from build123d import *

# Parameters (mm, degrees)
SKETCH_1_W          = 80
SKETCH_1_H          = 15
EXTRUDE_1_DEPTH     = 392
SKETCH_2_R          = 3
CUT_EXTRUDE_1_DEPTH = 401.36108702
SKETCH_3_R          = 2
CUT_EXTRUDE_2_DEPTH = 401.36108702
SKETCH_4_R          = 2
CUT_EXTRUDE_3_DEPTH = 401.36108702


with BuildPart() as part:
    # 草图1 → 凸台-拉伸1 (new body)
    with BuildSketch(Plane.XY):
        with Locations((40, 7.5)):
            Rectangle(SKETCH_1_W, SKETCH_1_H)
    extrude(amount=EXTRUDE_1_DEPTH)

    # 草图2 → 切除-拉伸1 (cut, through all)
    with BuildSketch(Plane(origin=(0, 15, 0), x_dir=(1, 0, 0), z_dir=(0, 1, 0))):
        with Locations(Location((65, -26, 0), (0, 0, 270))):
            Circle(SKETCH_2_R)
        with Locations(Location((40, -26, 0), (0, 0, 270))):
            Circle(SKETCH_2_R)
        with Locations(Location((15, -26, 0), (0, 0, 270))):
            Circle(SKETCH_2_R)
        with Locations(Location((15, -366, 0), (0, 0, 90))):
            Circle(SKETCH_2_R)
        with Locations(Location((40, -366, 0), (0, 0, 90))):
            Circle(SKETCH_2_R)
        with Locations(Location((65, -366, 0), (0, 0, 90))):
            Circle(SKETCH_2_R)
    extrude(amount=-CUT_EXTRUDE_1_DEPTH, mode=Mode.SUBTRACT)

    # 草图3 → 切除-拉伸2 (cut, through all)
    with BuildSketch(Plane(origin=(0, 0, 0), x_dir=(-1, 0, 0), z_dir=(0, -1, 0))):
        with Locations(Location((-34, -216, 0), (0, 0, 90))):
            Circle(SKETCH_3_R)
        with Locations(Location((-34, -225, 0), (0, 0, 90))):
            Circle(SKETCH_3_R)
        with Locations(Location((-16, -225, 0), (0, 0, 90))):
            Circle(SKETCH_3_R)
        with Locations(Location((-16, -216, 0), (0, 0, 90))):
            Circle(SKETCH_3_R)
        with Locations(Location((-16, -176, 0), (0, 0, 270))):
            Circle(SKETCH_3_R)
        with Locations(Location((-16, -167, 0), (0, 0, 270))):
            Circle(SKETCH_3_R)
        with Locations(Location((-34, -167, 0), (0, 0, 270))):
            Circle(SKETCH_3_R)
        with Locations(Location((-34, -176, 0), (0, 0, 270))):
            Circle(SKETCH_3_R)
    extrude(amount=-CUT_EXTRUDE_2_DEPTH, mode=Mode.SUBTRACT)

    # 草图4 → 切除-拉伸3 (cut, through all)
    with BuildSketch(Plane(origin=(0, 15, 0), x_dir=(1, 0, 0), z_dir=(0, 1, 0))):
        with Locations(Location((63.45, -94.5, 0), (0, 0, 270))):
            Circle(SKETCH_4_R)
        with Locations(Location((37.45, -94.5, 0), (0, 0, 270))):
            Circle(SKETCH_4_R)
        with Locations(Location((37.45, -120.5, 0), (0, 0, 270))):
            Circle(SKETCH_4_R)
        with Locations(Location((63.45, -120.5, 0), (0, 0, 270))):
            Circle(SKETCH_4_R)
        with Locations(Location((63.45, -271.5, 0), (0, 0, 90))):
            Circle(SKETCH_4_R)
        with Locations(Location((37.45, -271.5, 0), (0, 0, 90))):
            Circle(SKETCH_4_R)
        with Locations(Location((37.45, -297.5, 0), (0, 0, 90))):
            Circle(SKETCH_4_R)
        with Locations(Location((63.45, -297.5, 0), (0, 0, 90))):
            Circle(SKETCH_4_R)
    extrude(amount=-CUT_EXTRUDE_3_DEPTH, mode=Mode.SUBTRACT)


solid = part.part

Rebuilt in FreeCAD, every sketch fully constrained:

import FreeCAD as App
import Part
import Sketcher


def add_polygon(sketch, points):
    """Adds a closed chain of lines whose ends are joined by coincident constraints."""
    first, n = sketch.GeometryCount, len(points)
    for a, b in zip(points, points[1:] + points[:1]):
        sketch.addGeometry(Part.LineSegment(App.Vector(*a, 0), App.Vector(*b, 0)), False)
    for i in range(n):
        sketch.addConstraint(Sketcher.Constraint("Coincident", first + i, 2, first + (i + 1) % n, 1))

doc = App.newDocument("Part")
body = doc.addObject("PartDesign::Body", "Body")

# Sketch on XY plane
sketch1 = body.newObject("Sketcher::SketchObject", "Sketch")
sketch1.AttachmentSupport = (doc.getObject("XY_Plane"), [""])
sketch1.MapMode = "FlatFace"
add_polygon(sketch1, [(0, 15), (0, 0), (80, 0), (80, 15)])  # lines 0-3
sketch1.addConstraint([
    Sketcher.Constraint("Vertical", 0),
    Sketcher.Constraint("Horizontal", 1),
    Sketcher.Constraint("Vertical", 2),
    Sketcher.Constraint("Horizontal", 3),
    Sketcher.Constraint("Coincident", 0, 2, -1, 1),
    Sketcher.Constraint("DistanceX", 1, 1, 1, 2, 80.0),
    Sketcher.Constraint("DistanceY", 0, 2, 0, 1, 15.0),
])
pad1 = body.newObject("PartDesign::Pad", "Pad")
pad1.Profile = sketch1
pad1.Length = 392

# Sketch on XZ plane
sketch2 = body.newObject("Sketcher::SketchObject", "Sketch001")
sketch2.AttachmentSupport = (doc.getObject("XZ_Plane"), [""])
sketch2.MapMode = "FlatFace"
sketch2.AttachmentOffset = App.Placement(App.Vector(0, 0, -15), App.Rotation())
sketch2.addGeometry([
    Part.Circle(App.Vector(65, 26, 0), App.Vector(0, 0, 1), 3),  # 0
    Part.Circle(App.Vector(40, 26, 0), App.Vector(0, 0, 1), 3),  # 1
    Part.Circle(App.Vector(15, 26, 0), App.Vector(0, 0, 1), 3),  # 2
    Part.Circle(App.Vector(15, 366, 0), App.Vector(0, 0, 1), 3),  # 3
    Part.Circle(App.Vector(40, 366, 0), App.Vector(0, 0, 1), 3),  # 4
    Part.Circle(App.Vector(65, 366, 0), App.Vector(0, 0, 1), 3),  # 5
], False)
sketch2.addConstraint([
    Sketcher.Constraint("Equal", 0, 1),
    Sketcher.Constraint("Equal", 1, 2),
    Sketcher.Constraint("Equal", 2, 3),
    Sketcher.Constraint("Equal", 3, 4),
    Sketcher.Constraint("Equal", 4, 5),
    Sketcher.Constraint("Horizontal", 0, 3, 1, 3),
    Sketcher.Constraint("Horizontal", 1, 3, 2, 3),
    Sketcher.Constraint("Horizontal", 3, 3, 4, 3),
    Sketcher.Constraint("Horizontal", 4, 3, 5, 3),
    Sketcher.Constraint("Vertical", 2, 3, 3, 3),
    Sketcher.Constraint("Vertical", 1, 3, 4, 3),
    Sketcher.Constraint("Vertical", 0, 3, 5, 3),
    Sketcher.Constraint("Diameter", 0, 6.0),
    Sketcher.Constraint("DistanceX", -1, 1, 0, 3, 65.0),
    Sketcher.Constraint("DistanceY", -1, 1, 0, 3, 26.0),
    Sketcher.Constraint("DistanceX", -1, 1, 1, 3, 40.0),
    Sketcher.Constraint("DistanceX", -1, 1, 2, 3, 15.0),
    Sketcher.Constraint("DistanceY", -1, 1, 3, 3, 366.0),
])
pocket1 = body.newObject("PartDesign::Pocket", "Pocket")
pocket1.Profile = sketch2
pocket1.Type = "ThroughAll"
pocket1.Reversed = True

# Sketch on XZ plane
sketch3 = body.newObject("Sketcher::SketchObject", "Sketch002")
sketch3.AttachmentSupport = (doc.getObject("XZ_Plane"), [""])
sketch3.MapMode = "FlatFace"
sketch3.addGeometry([
    Part.Circle(App.Vector(34, 216, 0), App.Vector(0, 0, 1), 2),  # 0
    Part.Circle(App.Vector(34, 225, 0), App.Vector(0, 0, 1), 2),  # 1
    Part.Circle(App.Vector(16, 225, 0), App.Vector(0, 0, 1), 2),  # 2
    Part.Circle(App.Vector(16, 216, 0), App.Vector(0, 0, 1), 2),  # 3
    Part.Circle(App.Vector(16, 176, 0), App.Vector(0, 0, 1), 2),  # 4
    Part.Circle(App.Vector(16, 167, 0), App.Vector(0, 0, 1), 2),  # 5
    Part.Circle(App.Vector(34, 167, 0), App.Vector(0, 0, 1), 2),  # 6
    Part.Circle(App.Vector(34, 176, 0), App.Vector(0, 0, 1), 2),  # 7
], False)
sketch3.addConstraint([
    Sketcher.Constraint("Equal", 0, 1),
    Sketcher.Constraint("Equal", 1, 2),
    Sketcher.Constraint("Equal", 2, 3),
    Sketcher.Constraint("Equal", 3, 4),
    Sketcher.Constraint("Equal", 4, 5),
    Sketcher.Constraint("Equal", 5, 6),
    Sketcher.Constraint("Equal", 6, 7),
    Sketcher.Constraint("Horizontal", 1, 3, 2, 3),
    Sketcher.Constraint("Horizontal", 0, 3, 3, 3),
    Sketcher.Constraint("Horizontal", 5, 3, 6, 3),
    Sketcher.Constraint("Horizontal", 4, 3, 7, 3),
    Sketcher.Constraint("Vertical", 0, 3, 1, 3),
    Sketcher.Constraint("Vertical", 2, 3, 3, 3),
    Sketcher.Constraint("Vertical", 3, 3, 4, 3),
    Sketcher.Constraint("Vertical", 4, 3, 5, 3),
    Sketcher.Constraint("Vertical", 1, 3, 6, 3),
    Sketcher.Constraint("Vertical", 6, 3, 7, 3),
    Sketcher.Constraint("Diameter", 0, 4.0),
    Sketcher.Constraint("DistanceX", -1, 1, 0, 3, 34.0),
    Sketcher.Constraint("DistanceY", -1, 1, 0, 3, 216.0),
    Sketcher.Constraint("DistanceY", -1, 1, 1, 3, 225.0),
    Sketcher.Constraint("DistanceX", -1, 1, 2, 3, 16.0),
    Sketcher.Constraint("DistanceY", -1, 1, 4, 3, 176.0),
    Sketcher.Constraint("DistanceY", -1, 1, 5, 3, 167.0),
])
pocket2 = body.newObject("PartDesign::Pocket", "Pocket001")
pocket2.Profile = sketch3
pocket2.Type = "ThroughAll"

# Sketch on XZ plane
sketch4 = body.newObject("Sketcher::SketchObject", "Sketch003")
sketch4.AttachmentSupport = (doc.getObject("XZ_Plane"), [""])
sketch4.MapMode = "FlatFace"
sketch4.AttachmentOffset = App.Placement(App.Vector(0, 0, -15), App.Rotation())
sketch4.addGeometry([
    Part.Circle(App.Vector(63.5, 94.5, 0), App.Vector(0, 0, 1), 2),  # 0
    Part.Circle(App.Vector(37.5, 94.5, 0), App.Vector(0, 0, 1), 2),  # 1
    Part.Circle(App.Vector(37.5, 120.5, 0), App.Vector(0, 0, 1), 2),  # 2
    Part.Circle(App.Vector(63.5, 120.5, 0), App.Vector(0, 0, 1), 2),  # 3
    Part.Circle(App.Vector(63.5, 271.5, 0), App.Vector(0, 0, 1), 2),  # 4
    Part.Circle(App.Vector(37.5, 271.5, 0), App.Vector(0, 0, 1), 2),  # 5
    Part.Circle(App.Vector(37.5, 297.5, 0), App.Vector(0, 0, 1), 2),  # 6
    Part.Circle(App.Vector(63.5, 297.5, 0), App.Vector(0, 0, 1), 2),  # 7
], False)
sketch4.addConstraint([
    Sketcher.Constraint("Equal", 0, 1),
    Sketcher.Constraint("Equal", 1, 2),
    Sketcher.Constraint("Equal", 2, 3),
    Sketcher.Constraint("Equal", 3, 4),
    Sketcher.Constraint("Equal", 4, 5),
    Sketcher.Constraint("Equal", 5, 6),
    Sketcher.Constraint("Equal", 6, 7),
    Sketcher.Constraint("Horizontal", 0, 3, 1, 3),
    Sketcher.Constraint("Horizontal", 2, 3, 3, 3),
    Sketcher.Constraint("Horizontal", 4, 3, 5, 3),
    Sketcher.Constraint("Horizontal", 6, 3, 7, 3),
    Sketcher.Constraint("Vertical", 1, 3, 2, 3),
    Sketcher.Constraint("Vertical", 0, 3, 3, 3),
    Sketcher.Constraint("Vertical", 3, 3, 4, 3),
    Sketcher.Constraint("Vertical", 2, 3, 5, 3),
    Sketcher.Constraint("Vertical", 5, 3, 6, 3),
    Sketcher.Constraint("Vertical", 4, 3, 7, 3),
    Sketcher.Constraint("Diameter", 0, 4.0),
    Sketcher.Constraint("DistanceX", 1, 3, 0, 3, 26.0),
    Sketcher.Constraint("DistanceY", 1, 3, 2, 3, 26.0),
    Sketcher.Constraint("DistanceY", 3, 3, 4, 3, 151.0),
    Sketcher.Constraint("DistanceY", 5, 3, 6, 3, 26.0),
    Sketcher.Constraint("DistanceY", -1, 1, 0, 3, 94.5),
    Sketcher.Constraint("DistanceX", -1, 1, 0, 3, 63.45),
])
pocket3 = body.newObject("PartDesign::Pocket", "Pocket002")
pocket3.Profile = sketch4
pocket3.Type = "ThroughAll"
pocket3.Reversed = True

doc.recompute()
